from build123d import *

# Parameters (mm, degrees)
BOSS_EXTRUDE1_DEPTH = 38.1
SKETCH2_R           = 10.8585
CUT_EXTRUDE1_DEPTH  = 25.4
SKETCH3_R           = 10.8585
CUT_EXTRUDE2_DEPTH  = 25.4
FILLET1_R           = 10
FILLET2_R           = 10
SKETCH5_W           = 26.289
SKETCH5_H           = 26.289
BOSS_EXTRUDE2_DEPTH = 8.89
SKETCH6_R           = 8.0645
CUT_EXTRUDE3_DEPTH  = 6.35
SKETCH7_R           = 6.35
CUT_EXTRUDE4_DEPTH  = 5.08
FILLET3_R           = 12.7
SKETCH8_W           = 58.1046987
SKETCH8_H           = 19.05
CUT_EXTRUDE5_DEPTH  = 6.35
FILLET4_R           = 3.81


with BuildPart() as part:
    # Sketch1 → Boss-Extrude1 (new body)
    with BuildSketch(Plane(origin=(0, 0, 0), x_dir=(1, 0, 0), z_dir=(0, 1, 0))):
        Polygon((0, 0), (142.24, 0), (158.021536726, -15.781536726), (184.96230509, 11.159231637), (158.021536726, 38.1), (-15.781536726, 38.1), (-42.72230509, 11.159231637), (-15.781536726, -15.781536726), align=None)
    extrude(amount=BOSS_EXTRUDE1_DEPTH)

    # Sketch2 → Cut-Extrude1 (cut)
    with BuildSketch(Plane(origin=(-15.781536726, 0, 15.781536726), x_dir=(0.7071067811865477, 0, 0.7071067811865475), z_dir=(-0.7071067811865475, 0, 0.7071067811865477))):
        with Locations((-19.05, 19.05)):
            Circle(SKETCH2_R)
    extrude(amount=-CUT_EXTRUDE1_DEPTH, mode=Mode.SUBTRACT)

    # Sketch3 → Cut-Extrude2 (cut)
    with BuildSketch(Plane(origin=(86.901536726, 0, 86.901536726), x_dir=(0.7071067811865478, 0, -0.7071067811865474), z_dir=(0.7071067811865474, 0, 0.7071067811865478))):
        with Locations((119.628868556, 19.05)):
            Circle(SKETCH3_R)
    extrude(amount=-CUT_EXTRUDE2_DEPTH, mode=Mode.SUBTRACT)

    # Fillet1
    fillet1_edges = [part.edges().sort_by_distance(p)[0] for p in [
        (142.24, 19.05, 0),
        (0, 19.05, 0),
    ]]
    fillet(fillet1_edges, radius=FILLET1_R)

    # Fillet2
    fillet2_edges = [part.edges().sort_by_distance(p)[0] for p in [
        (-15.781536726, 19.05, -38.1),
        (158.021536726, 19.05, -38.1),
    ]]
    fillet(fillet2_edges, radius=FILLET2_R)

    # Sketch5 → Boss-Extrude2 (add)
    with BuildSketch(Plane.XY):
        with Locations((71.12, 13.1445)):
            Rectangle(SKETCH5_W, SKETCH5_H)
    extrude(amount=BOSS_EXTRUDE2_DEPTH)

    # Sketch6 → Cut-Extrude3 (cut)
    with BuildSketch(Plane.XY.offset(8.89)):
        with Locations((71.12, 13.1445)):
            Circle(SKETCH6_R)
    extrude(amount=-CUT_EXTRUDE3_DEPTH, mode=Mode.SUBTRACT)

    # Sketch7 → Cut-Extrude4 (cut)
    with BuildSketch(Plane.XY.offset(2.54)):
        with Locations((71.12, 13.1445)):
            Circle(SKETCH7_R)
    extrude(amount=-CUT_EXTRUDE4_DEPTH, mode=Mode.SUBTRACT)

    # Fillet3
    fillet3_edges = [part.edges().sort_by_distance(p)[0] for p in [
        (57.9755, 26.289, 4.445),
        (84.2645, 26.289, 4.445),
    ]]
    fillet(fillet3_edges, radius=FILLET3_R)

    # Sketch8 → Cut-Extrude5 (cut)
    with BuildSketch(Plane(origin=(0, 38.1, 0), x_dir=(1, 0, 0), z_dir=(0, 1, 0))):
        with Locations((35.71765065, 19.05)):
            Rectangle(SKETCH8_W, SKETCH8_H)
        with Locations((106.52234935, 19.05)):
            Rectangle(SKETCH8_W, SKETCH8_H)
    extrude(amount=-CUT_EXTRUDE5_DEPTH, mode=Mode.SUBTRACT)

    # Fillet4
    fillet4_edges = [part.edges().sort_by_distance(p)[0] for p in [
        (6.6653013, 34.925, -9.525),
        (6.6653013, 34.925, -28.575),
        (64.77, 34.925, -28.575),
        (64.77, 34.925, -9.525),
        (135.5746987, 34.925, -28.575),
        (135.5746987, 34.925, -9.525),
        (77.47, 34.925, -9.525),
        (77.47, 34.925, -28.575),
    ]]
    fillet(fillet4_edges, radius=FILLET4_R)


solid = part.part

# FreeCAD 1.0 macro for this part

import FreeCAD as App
import Part
import Sketcher
from FreeCAD import Vector
Q = App.Units.Quantity


def edges_at(feature, points):
    """Names of the edges that pass closest to the given points."""
    edges = feature.Shape.Edges
    near = lambda p: min(range(len(edges)), key=lambda i: edges[i].distToShape(Part.Vertex(*p))[0])
    return sorted({f"Edge{near(p) + 1}" for p in points})


def add_polygon(sketch, points):
    """Adds a closed chain of lines whose ends are joined by coincident constraints."""
    first, n = sketch.GeometryCount, len(points)
    for a, b in zip(points, points[1:] + points[:1]):
        sketch.addGeometry(Part.LineSegment(App.Vector(*a, 0), App.Vector(*b, 0)), False)
    for i in range(n):
        sketch.addConstraint(Sketcher.Constraint("Coincident", first + i, 2, first + (i + 1) % n, 1))

doc = App.newDocument("Part")
params = doc.addObject("Spreadsheet::Sheet", "Params")
for row, (alias, value) in enumerate([
    ("sketch1_width", "5.6 in"),
    ("sketch1_length", "1.5 in"),
    ("pad1_length", "1.5 in"),
    ("sketch2_diameter", "0.855 in"),
    ("pocket1_length", "1 in"),
    ("sketch3_diameter", "0.855 in"),
    ("pocket2_length", "1 in"),
    ("fillet_radius", "10 mm"),
    ("fillet2_radius", "10 mm"),
    ("sketch4_width", "1.035 in"),
    ("pad2_length", "0.35 in"),
    ("sketch5_diameter", "0.635 in"),
    ("pocket3_length", "0.25 in"),
    ("sketch6_diameter", "0.5 in"),
    ("pocket4_length", "0.2 in"),
    ("fillet3_radius", "0.5 in"),
    ("sketch7_height", "0.75 in"),
    ("pocket5_length", "0.25 in"),
    ("fillet4_radius", "0.15 in"),
], start=1):
    params.set(f"A{row}", alias)
    params.set(f"B{row}", "=" + value)
    params.setAlias(f"B{row}", alias)

body = doc.addObject("PartDesign::Body", "Body")

sketch1 = body.newObject("Sketcher::SketchObject", "Sketch")
sketch1.AttachmentSupport = (doc.getObject("XZ_Plane"), [""])
sketch1.MapMode = "FlatFace"
add_polygon(sketch1, [(0, 0), (142, 0), (158, 16), (185, -11), (158, -38), (-16, -38), (-43, -11), (-16, 16)])
sketch1.addConstraint(Sketcher.Constraint("Horizontal", 0))
sketch1.addConstraint(Sketcher.Constraint("Horizontal", 4))
sketch1.addConstraint(Sketcher.Constraint("Coincident", 7, 2, -1, 1))
sketch1.addConstraint(Sketcher.Constraint("Perpendicular", 1, 2))
sketch1.addConstraint(Sketcher.Constraint("Perpendicular", 2, 3))
sketch1.addConstraint(Sketcher.Constraint("Perpendicular", 3, 5))
sketch1.addConstraint(Sketcher.Constraint("Perpendicular", 5, 6))
sketch1.addConstraint(Sketcher.Constraint("Perpendicular", 6, 7))
sketch1.addConstraint(Sketcher.Constraint("Horizontal", 2, 2, 5, 2))
sketch1.addConstraint(Sketcher.Constraint("Horizontal", 1, 2, 6, 2))
sketch1.addConstraint(Sketcher.Constraint("Vertical", 1, 2, 3, 2))
sketch1.addConstraint(Sketcher.Constraint("Vertical", 4, 2, 6, 2))
sketch1.addConstraint(Sketcher.Constraint("DistanceX", 0, 1, 0, 2, Q("5.6 in")))
sketch1.addConstraint(Sketcher.Constraint("Distance", 2, Q("1.5 in")))
sketch1.addConstraint(Sketcher.Constraint("DistanceY", 3, 2, -1, 1, Q("1.5 in")))
sketch1.setExpression("Constraints[20]", "Params.sketch1_width")
sketch1.setExpression("Constraints[21]", "Params.sketch1_length")
pad1 = body.newObject("PartDesign::Pad", "Pad")
pad1.Profile = sketch1
pad1.setExpression("Length", "Params.pad1_length")
pad1.Reversed = True

sketch2 = body.newObject("Sketcher::SketchObject", "Sketch001")
sketch2.Placement = App.Placement(Vector(-15.781537, 0, 15.781537), App.Rotation(Vector(0.707106781, 0, 0.707106781), Vector(0, 0.999999999, 0), Vector(-0.707106781, 0, 0.707106781), "ZXY"))
sketch2.addGeometry(Part.Circle(Vector(-19, 19, 0), Vector(0, 0, 1), 11), False)
sketch2.addConstraint(Sketcher.Constraint("Diameter", 0, Q("0.855 in")))
sketch2.addConstraint(Sketcher.Constraint("DistanceX", 0, 3, -1, 1, Q("0.75 in")))
sketch2.addConstraint(Sketcher.Constraint("DistanceY", -1, 1, 0, 3, Q("0.75 in")))
sketch2.setExpression("Constraints[0]", "Params.sketch2_diameter")
pocket1 = body.newObject("PartDesign::Pocket", "Pocket")
pocket1.Profile = sketch2
pocket1.setExpression("Length", "Params.pocket1_length")

sketch3 = body.newObject("Sketcher::SketchObject", "Sketch002")
sketch3.Placement = App.Placement(Vector(86.901537, 0, 86.901537), App.Rotation(Vector(0.707106781, 0, -0.707106781), Vector(0, 0.999999999, 0), Vector(0.707106781, 0, 0.707106781), "ZXY"))
sketch3.addGeometry(Part.Circle(Vector(120, 19, 0), Vector(0, 0, 1), 11), False)
sketch3.addConstraint(Sketcher.Constraint("Diameter", 0, Q("0.855 in")))
sketch3.addConstraint(Sketcher.Constraint("DistanceY", -1, 1, 0, 3, Q("0.75 in")))
sketch3.addConstraint(Sketcher.Constraint("DistanceX", -1, 1, 0, 3, 119.628868))
sketch3.setExpression("Constraints[0]", "Params.sketch3_diameter")
pocket2 = body.newObject("PartDesign::Pocket", "Pocket001")
pocket2.Profile = sketch3
pocket2.setExpression("Length", "Params.pocket2_length")
doc.recompute()

fillet = body.newObject("PartDesign::Fillet", "Fillet")
fillet.Base = (pocket2, edges_at(pocket2, [(142.24, 19.05, 0), (0, 19.05, 0)]))
fillet.setExpression("Radius", "Params.fillet_radius")
doc.recompute()

fillet2 = body.newObject("PartDesign::Fillet", "Fillet001")
fillet2.Base = (fillet, edges_at(fillet, [(-15.782, 19.05, -38.1), (158.022, 19.05, -38.1)]))
fillet2.setExpression("Radius", "Params.fillet2_radius")

sketch4 = body.newObject("Sketcher::SketchObject", "Sketch003")
sketch4.AttachmentSupport = (doc.getObject("XY_Plane"), [""])
sketch4.MapMode = "FlatFace"
add_polygon(sketch4, [(58, 26), (58, 0), (84, 0), (84, 26)])
sketch4.addConstraint(Sketcher.Constraint("Vertical", 0))
sketch4.addConstraint(Sketcher.Constraint("Horizontal", 1))
sketch4.addConstraint(Sketcher.Constraint("Vertical", 2))
sketch4.addConstraint(Sketcher.Constraint("Horizontal", 3))
sketch4.addConstraint(Sketcher.Constraint("PointOnObject", 0, 2, -1))
sketch4.addConstraint(Sketcher.Constraint("Equal", 3, 0))
sketch4.addConstraint(Sketcher.Constraint("DistanceX", 1, 1, 1, 2, Q("1.035 in")))
sketch4.addConstraint(Sketcher.Constraint("DistanceX", -1, 1, 0, 2, Q("2.2825 in")))
sketch4.setExpression("Constraints[10]", "Params.sketch4_width")
pad2 = body.newObject("PartDesign::Pad", "Pad001")
pad2.Profile = sketch4
pad2.setExpression("Length", "Params.pad2_length")

sketch5 = body.newObject("Sketcher::SketchObject", "Sketch004")
sketch5.AttachmentSupport = (doc.getObject("XY_Plane"), [""])
sketch5.MapMode = "FlatFace"
sketch5.AttachmentOffset = App.Placement(Vector(0, 0, 0.35 * 25.4), App.Rotation())
sketch5.addGeometry(Part.Circle(Vector(71, 13, 0), Vector(0, 0, 1), 8), False)
sketch5.addConstraint(Sketcher.Constraint("Diameter", 0, Q("0.635 in")))
sketch5.addConstraint(Sketcher.Constraint("DistanceX", -1, 1, 0, 3, Q("2.8 in")))
sketch5.addConstraint(Sketcher.Constraint("DistanceY", -1, 1, 0, 3, Q("0.5175 in")))
sketch5.setExpression("Constraints[0]", "Params.sketch5_diameter")
pocket3 = body.newObject("PartDesign::Pocket", "Pocket002")
pocket3.Profile = sketch5
pocket3.setExpression("Length", "Params.pocket3_length")

sketch6 = body.newObject("Sketcher::SketchObject", "Sketch005")
sketch6.AttachmentSupport = (doc.getObject("XY_Plane"), [""])
sketch6.MapMode = "FlatFace"
sketch6.AttachmentOffset = App.Placement(Vector(0, 0, 0.1 * 25.4), App.Rotation())
sketch6.addGeometry(Part.Circle(Vector(71, 13, 0), Vector(0, 0, 1), 6), False)
sketch6.addConstraint(Sketcher.Constraint("Diameter", 0, Q("0.5 in")))
sketch6.addConstraint(Sketcher.Constraint("DistanceX", -1, 1, 0, 3, Q("2.8 in")))
sketch6.addConstraint(Sketcher.Constraint("DistanceY", -1, 1, 0, 3, Q("0.5175 in")))
sketch6.setExpression("Constraints[0]", "Params.sketch6_diameter")
pocket4 = body.newObject("PartDesign::Pocket", "Pocket003")
pocket4.Profile = sketch6
pocket4.setExpression("Length", "Params.pocket4_length")
doc.recompute()

fillet3 = body.newObject("PartDesign::Fillet", "Fillet002")
fillet3.Base = (pocket4, edges_at(pocket4, [(57.975, 26.289, 4.445), (84.264, 26.289, 4.445)]))
fillet3.setExpression("Radius", "Params.fillet3_radius")

sketch7 = body.newObject("Sketcher::SketchObject", "Sketch006")
sketch7.AttachmentSupport = (doc.getObject("XZ_Plane"), [""])
sketch7.MapMode = "FlatFace"
sketch7.AttachmentOffset = App.Placement(Vector(0, 0, -1.5 * 25.4), App.Rotation())
add_polygon(sketch7, [(7, -29), (7, -10), (65, -10), (65, -29)])
add_polygon(sketch7, [(77, -29), (77, -10), (136, -10), (136, -29)])
sketch7.addConstraint(Sketcher.Constraint("Vertical", 0))
sketch7.addConstraint(Sketcher.Constraint("Horizontal", 1))
sketch7.addConstraint(Sketcher.Constraint("Vertical", 2))
sketch7.addConstraint(Sketcher.Constraint("Horizontal", 3))
sketch7.addConstraint(Sketcher.Constraint("Vertical", 4))
sketch7.addConstraint(Sketcher.Constraint("Horizontal", 5))
sketch7.addConstraint(Sketcher.Constraint("Vertical", 6))
sketch7.addConstraint(Sketcher.Constraint("Horizontal", 7))
sketch7.addConstraint(Sketcher.Constraint("Horizontal", 1, 2, 4, 2))
sketch7.addConstraint(Sketcher.Constraint("Horizontal", 3, 2, 6, 2))
sketch7.addConstraint(Sketcher.Constraint("Equal", 3, 5))
sketch7.addConstraint(Sketcher.Constraint("DistanceY", 0, 1, 0, 2, Q("0.75 in")))
sketch7.addConstraint(Sketcher.Constraint("DistanceX", 1, 2, 4, 2, Q("0.5 in")))
sketch7.addConstraint(Sketcher.Constraint("DistanceX", -1, 1, 1, 2, Q("2.55 in")))
sketch7.addConstraint(Sketcher.Constraint("DistanceY", 0, 2, -1, 1, Q("0.375 in")))
sketch7.addConstraint(Sketcher.Constraint("DistanceX", 1, 1, 1, 2, 58.104699))
sketch7.setExpression("Constraints[19]", "Params.sketch7_height")
pocket5 = body.newObject("PartDesign::Pocket", "Pocket004")
pocket5.Profile = sketch7
pocket5.setExpression("Length", "Params.pocket5_length")
pocket5.Reversed = True
doc.recompute()

fillet4 = body.newObject("PartDesign::Fillet", "Fillet003")
fillet4.Base = (pocket5, edges_at(pocket5, [
    (6.665, 34.925, -9.525),
    (6.665, 34.925, -28.575),
    (64.77, 34.925, -28.575),
    (64.77, 34.925, -9.525),
    (135.575, 34.925, -28.575),
    (135.575, 34.925, -9.525),
    (77.47, 34.925, -9.525),
    (77.47, 34.925, -28.575),
]))
fillet4.setExpression("Radius", "Params.fillet4_radius")

doc.recompute()
